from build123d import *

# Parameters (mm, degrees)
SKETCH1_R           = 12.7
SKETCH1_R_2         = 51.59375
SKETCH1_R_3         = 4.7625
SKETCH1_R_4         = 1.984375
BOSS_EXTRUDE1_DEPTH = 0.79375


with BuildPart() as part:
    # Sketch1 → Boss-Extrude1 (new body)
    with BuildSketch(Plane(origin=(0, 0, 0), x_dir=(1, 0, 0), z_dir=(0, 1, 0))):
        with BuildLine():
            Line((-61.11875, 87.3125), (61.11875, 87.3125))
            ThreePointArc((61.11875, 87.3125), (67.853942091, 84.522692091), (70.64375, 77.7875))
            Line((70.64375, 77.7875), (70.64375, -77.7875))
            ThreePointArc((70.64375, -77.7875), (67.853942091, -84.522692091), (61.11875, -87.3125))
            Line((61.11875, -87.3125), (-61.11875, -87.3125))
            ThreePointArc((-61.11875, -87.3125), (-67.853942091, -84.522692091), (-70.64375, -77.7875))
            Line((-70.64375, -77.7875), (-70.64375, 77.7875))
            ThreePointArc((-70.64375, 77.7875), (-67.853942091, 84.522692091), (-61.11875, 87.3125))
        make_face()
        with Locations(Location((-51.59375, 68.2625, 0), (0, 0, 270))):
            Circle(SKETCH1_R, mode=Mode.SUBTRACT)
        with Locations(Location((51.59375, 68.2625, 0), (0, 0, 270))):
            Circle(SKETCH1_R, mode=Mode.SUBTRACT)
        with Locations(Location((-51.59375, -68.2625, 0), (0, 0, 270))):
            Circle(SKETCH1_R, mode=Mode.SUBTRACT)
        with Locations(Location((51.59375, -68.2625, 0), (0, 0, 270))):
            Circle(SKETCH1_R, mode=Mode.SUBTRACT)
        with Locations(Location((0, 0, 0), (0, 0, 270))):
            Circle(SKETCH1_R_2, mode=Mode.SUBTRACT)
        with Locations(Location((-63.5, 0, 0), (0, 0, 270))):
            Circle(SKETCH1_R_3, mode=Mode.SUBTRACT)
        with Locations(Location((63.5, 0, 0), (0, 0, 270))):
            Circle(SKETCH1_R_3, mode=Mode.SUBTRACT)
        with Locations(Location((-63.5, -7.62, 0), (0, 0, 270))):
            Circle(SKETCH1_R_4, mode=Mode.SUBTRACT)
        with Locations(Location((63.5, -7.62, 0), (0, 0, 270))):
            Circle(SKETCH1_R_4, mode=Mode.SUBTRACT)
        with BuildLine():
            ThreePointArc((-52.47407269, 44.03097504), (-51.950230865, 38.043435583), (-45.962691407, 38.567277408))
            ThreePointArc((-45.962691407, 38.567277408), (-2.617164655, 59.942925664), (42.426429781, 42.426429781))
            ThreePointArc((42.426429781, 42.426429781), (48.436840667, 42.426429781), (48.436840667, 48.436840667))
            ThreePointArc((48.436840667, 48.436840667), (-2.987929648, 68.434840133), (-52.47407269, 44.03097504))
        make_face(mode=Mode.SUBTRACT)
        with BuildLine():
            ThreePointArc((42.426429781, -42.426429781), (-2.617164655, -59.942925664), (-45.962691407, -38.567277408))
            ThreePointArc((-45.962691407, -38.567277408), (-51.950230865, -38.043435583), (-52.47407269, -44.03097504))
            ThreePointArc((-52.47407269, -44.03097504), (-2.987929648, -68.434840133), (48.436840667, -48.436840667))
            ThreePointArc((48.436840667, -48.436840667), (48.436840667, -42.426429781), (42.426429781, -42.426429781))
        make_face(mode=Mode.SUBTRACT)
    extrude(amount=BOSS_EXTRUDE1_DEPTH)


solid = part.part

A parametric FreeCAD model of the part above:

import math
import FreeCAD as App
import Part
import Sketcher
from FreeCAD import Vector
Q = App.Units.Quantity

doc = App.newDocument("Part")
body = doc.addObject("PartDesign::Body", "Body")

sketch1 = doc.addObject("Sketcher::SketchObject", "Sketch")
body.addObject(sketch1)
sketch1.AttachmentSupport = (doc.XZ_Plane, [""])
sketch1.MapMode = "FlatFace"
sketch1.addGeometry([
    Part.LineSegment(Vector(61.1, -87.3, 0), Vector(-61.1, -87.3, 0)),
    Part.ArcOfCircle(Part.Circle(Vector(-61.1, -77.8, 0), Vector(0, 0, 1), 9.5), math.radians(180), math.radians(270)),
    Part.LineSegment(Vector(-70.6, -77.8, 0), Vector(-70.6, 77.8, 0)),
    Part.ArcOfCircle(Part.Circle(Vector(-61.1, 77.8, 0), Vector(0, 0, 1), 9.5), math.radians(90), math.radians(180)),
    Part.LineSegment(Vector(-61.1, 87.3, 0), Vector(61.1, 87.3, 0)),
    Part.ArcOfCircle(Part.Circle(Vector(61.1, 77.8, 0), Vector(0, 0, 1), 9.5), math.radians(0), math.radians(90)),
    Part.LineSegment(Vector(70.6, 77.8, 0), Vector(70.6, -77.8, 0)),
    Part.ArcOfCircle(Part.Circle(Vector(61.1, -77.8, 0), Vector(0, 0, 1), 9.5), math.radians(-90), math.radians(0)),
    Part.Circle(Vector(51.6, 68.3, 0), Vector(0, 0, 1), 12.7),
    Part.Circle(Vector(63.5, 7.6, 0), Vector(0, 0, 1), 2),
    Part.ArcOfCircle(Part.Circle(Vector(45.4, 45.4, 0), Vector(0, 0, 1), 4.3), math.radians(-135), math.radians(45)),
    Part.ArcOfCircle(Part.Circle(Vector(0, 0, 0), Vector(0, 0, 1), 68.5), math.radians(45), math.radians(140)),
    Part.ArcOfCircle(Part.Circle(Vector(-49.2, 41.3, 0), Vector(0, 0, 1), 4.3), math.radians(140), math.radians(320)),
    Part.ArcOfCircle(Part.Circle(Vector(0, 0, 0), Vector(0, 0, 1), 60), math.radians(45), math.radians(140)),
    Part.Circle(Vector(-51.6, 68.3, 0), Vector(0, 0, 1), 12.7),
    Part.Circle(Vector(-63.5, 7.6, 0), Vector(0, 0, 1), 2),
    Part.Circle(Vector(63.5, 0, 0), Vector(0, 0, 1), 4.8),
    Part.Circle(Vector(51.6, -68.3, 0), Vector(0, 0, 1), 12.7),
    Part.Circle(Vector(0, 0, 0), Vector(0, 0, 1), 51.6),
    Part.Circle(Vector(-63.5, 0, 0), Vector(0, 0, 1), 4.8),
    Part.ArcOfCircle(Part.Circle(Vector(0, 0, 0), Vector(0, 0, 1), 68.5), math.radians(-140), math.radians(-45)),
    Part.ArcOfCircle(Part.Circle(Vector(45.4, -45.4, 0), Vector(0, 0, 1), 4.3), math.radians(-45), math.radians(135)),
    Part.ArcOfCircle(Part.Circle(Vector(0, 0, 0), Vector(0, 0, 1), 60), math.radians(-140), math.radians(-45)),
    Part.ArcOfCircle(Part.Circle(Vector(-49.2, -41.3, 0), Vector(0, 0, 1), 4.3), math.radians(40), math.radians(220)),
    Part.Circle(Vector(-51.6, -68.3, 0), Vector(0, 0, 1), 12.7),
], False)
sketch1.addConstraint([
    Sketcher.Constraint("Tangent", 0, 2, 1, 2),
    Sketcher.Constraint("Tangent", 1, 1, 2, 1),
    Sketcher.Constraint("Tangent", 2, 2, 3, 2),
    Sketcher.Constraint("Tangent", 3, 1, 4, 1),
    Sketcher.Constraint("Tangent", 4, 2, 5, 2),
    Sketcher.Constraint("Tangent", 5, 1, 6, 1),
    Sketcher.Constraint("Tangent", 6, 2, 7, 2),
    Sketcher.Constraint("Tangent", 7, 1, 0, 1),
    Sketcher.Constraint("Tangent", 10, 2, 11, 1),
    Sketcher.Constraint("Tangent", 11, 2, 12, 1),
    Sketcher.Constraint("Tangent", 12, 2, 13, 2),
    Sketcher.Constraint("Tangent", 13, 1, 10, 1),
    Sketcher.Constraint("Tangent", 20, 2, 21, 1),
    Sketcher.Constraint("Tangent", 21, 2, 22, 2),
    Sketcher.Constraint("Tangent", 22, 1, 23, 1),
    Sketcher.Constraint("Tangent", 23, 2, 20, 1),
    Sketcher.Constraint("Horizontal", 0),
    Sketcher.Constraint("Vertical", 2),
    Sketcher.Constraint("Horizontal", 4),
    Sketcher.Constraint("Vertical", 6),
    Sketcher.Constraint("Coincident", 11, 3, -1, 1),
    Sketcher.Constraint("Coincident", 13, 3, -1, 1),
    Sketcher.Constraint("Coincident", 18, 3, -1, 1),
    Sketcher.Constraint("Coincident", 20, 3, -1, 1),
    Sketcher.Constraint("Coincident", 22, 3, -1, 1),
    Sketcher.Constraint("Equal", 1, 3),
    Sketcher.Constraint("Equal", 3, 5),
    Sketcher.Constraint("Equal", 5, 7),
    Sketcher.Constraint("Equal", 8, 14),
    Sketcher.Constraint("Equal", 9, 15),
    Sketcher.Constraint("Equal", 14, 17),
    Sketcher.Constraint("Equal", 16, 19),
    Sketcher.Constraint("Equal", 11, 20),
    Sketcher.Constraint("Equal", 12, 21),
    Sketcher.Constraint("Equal", 17, 24),
    Sketcher.Constraint("Symmetric", 1, 3, 5, 3, -1, 1),
    Sketcher.Constraint("Symmetric", 14, 3, 17, 3, -1, 1),
    Sketcher.Constraint("Symmetric", 16, 3, 19, 3, -1, 1),
    Sketcher.Constraint("Symmetric", 8, 3, 24, 3, -1, 1),
    Sketcher.Constraint("Symmetric", 8, 3, 14, 3, -2),
    Sketcher.Constraint("Symmetric", 9, 3, 15, 3, -2),
    Sketcher.Constraint("PointOnObject", 16, 3, -1),
    Sketcher.Constraint("Vertical", 9, 3, 16, 3),
    Sketcher.Constraint("Vertical", 10, 3, 21, 3),
    Sketcher.Constraint("Vertical", 12, 3, 23, 3),
    Sketcher.Constraint("Diameter", 8, Q("1 in")),
    Sketcher.Constraint("Diameter", 9, Q("0.15625 in")),
    Sketcher.Constraint("Diameter", 16, Q("0.375 in")),
    Sketcher.Constraint("Diameter", 18, Q("4.0625 in")),
    Sketcher.Constraint("Radius", 1, Q("0.375 in")),
    Sketcher.Constraint("DistanceX", -1, 1, 9, 3, Q("2.5 in")),
    Sketcher.Constraint("DistanceY", -1, 1, 9, 3, Q("0.3 in")),
    Sketcher.Constraint("DistanceX", 0, 2, 0, 1, Q("4.8125 in")),
    Sketcher.Constraint("DistanceY", 2, 1, 2, 2, Q("6.125 in")),
    Sketcher.Constraint("DistanceY", 7, 3, 8, 3, Q("5.75 in")),
    Sketcher.Constraint("DistanceX", 1, 1, 24, 3, Q("0.75 in")),
    Sketcher.Constraint("Radius", 10, 4.250002),
    Sketcher.Constraint("Radius", 11, 68.500037),
    Sketcher.Constraint("DistanceX", -1, 1, 10, 2, 48.436841),
    Sketcher.Constraint("DistanceX", 12, 2, -1, 1, 45.962691),
])
pad1 = doc.addObject("PartDesign::Pad", "Pad")
body.addObject(pad1)
pad1.Profile = sketch1
pad1.Length = Q("0.03125 in")
pad1.Reversed = True

doc.recompute()
